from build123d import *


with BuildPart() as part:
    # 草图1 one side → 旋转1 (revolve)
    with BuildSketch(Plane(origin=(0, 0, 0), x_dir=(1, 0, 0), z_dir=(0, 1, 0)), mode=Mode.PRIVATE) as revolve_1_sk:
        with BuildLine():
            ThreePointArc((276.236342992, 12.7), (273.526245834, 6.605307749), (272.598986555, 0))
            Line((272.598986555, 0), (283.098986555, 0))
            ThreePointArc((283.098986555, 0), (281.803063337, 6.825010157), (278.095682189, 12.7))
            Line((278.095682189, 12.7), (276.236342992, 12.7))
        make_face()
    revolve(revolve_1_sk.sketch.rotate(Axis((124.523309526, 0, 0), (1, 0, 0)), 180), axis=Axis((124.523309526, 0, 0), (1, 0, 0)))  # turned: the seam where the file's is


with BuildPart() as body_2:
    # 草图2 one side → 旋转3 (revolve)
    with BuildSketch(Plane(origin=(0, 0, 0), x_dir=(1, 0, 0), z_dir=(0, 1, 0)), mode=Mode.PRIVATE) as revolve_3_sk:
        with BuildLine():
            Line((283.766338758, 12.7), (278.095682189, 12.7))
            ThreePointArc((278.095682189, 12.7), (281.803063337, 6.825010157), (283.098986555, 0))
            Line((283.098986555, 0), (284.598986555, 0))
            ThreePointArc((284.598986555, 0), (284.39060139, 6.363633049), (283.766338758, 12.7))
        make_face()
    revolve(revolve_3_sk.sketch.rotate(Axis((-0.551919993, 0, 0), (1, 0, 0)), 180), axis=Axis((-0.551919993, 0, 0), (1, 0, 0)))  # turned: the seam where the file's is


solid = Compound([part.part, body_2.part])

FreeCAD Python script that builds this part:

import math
import FreeCAD as App
import Part
import Sketcher

V = App.Vector
Q = App.Units.Quantity

doc = App.newDocument("Part")
body = doc.addObject("PartDesign::Body", "Body")

# Sketch on XZ plane
sketch1 = body.newObject("Sketcher::SketchObject", "Sketch")
sketch1.AttachmentSupport = (doc.getObject("XZ_Plane"), [""])
sketch1.MapMode = "FlatFace"
sketch1.addGeometry([
    Part.ArcOfCircle(Part.Circle(V(296.588987, 0, 0), V(0, 0, 1), 23.99), math.radians(180), math.radians(211.964063)),
    Part.LineSegment(V(272.598987, 0, 0), V(283.098987, 0, 0)),
    Part.ArcOfCircle(Part.Circle(V(264.478987, 0, 0), V(0, 0, 1), 18.62), math.radians(-43.005009), math.radians(0)),
    Part.LineSegment(V(278.095682, -12.7, 0), V(276.236343, -12.7, 0)),
], False)
sketch1.addConstraint([
    Sketcher.Constraint("Coincident", 0, 1, 1, 1),
    Sketcher.Constraint("Coincident", 1, 2, 2, 2),
    Sketcher.Constraint("Coincident", 2, 1, 3, 1),
    Sketcher.Constraint("Coincident", 3, 2, 0, 2),
    Sketcher.Constraint("Horizontal", 1),
    Sketcher.Constraint("Horizontal", 3),
    Sketcher.Constraint("PointOnObject", 0, 3, -1),
    Sketcher.Constraint("PointOnObject", 2, 3, -1),
    Sketcher.Constraint("PointOnObject", 0, 1, -1),
    Sketcher.Constraint("Radius", 0, Q("23.99 mm")),
    Sketcher.Constraint("Radius", 2, Q("18.62 mm")),
    Sketcher.Constraint("DistanceX", 1, 1, 1, 2, Q("10.5 mm")),
    Sketcher.Constraint("DistanceY", 2, 1, -1, 1, Q("12.7 mm")),
    Sketcher.Constraint("DistanceX", -1, 1, 0, 3, Q("296.588987 mm")),
])
revolution = body.newObject("PartDesign::Revolution", "Revolution")
revolution.Profile = sketch1
revolution.ReferenceAxis = (sketch1, ["H_Axis"])
revolution.Angle = 360
body2 = doc.addObject("PartDesign::Body", "Body001")

# Sketch on XZ plane
sketch2 = body2.newObject("Sketcher::SketchObject", "Sketch001")
sketch2.AttachmentSupport = (doc.getObject("XZ_Plane001"), [""])
sketch2.MapMode = "FlatFace"
sketch2.addGeometry([
    Part.LineSegment(V(283.766339, -12.7, 0), V(278.095682, -12.7, 0)),
    Part.ArcOfCircle(Part.Circle(V(264.478987, 0, 0), V(0, 0, 1), 18.62), math.radians(-43.005009), math.radians(0)),
    Part.LineSegment(V(283.098987, 0, 0), V(284.598987, 0, 0)),
    Part.ArcOfCircle(Part.Circle(V(187.328987, 0, 0), V(0, 0, 1), 97.27), math.radians(-7.502209), math.radians(0)),
], False)
sketch2.addConstraint([
    Sketcher.Constraint("Coincident", 0, 2, 1, 1),
    Sketcher.Constraint("Coincident", 1, 2, 2, 1),
    Sketcher.Constraint("Coincident", 2, 2, 3, 2),
    Sketcher.Constraint("Coincident", 3, 1, 0, 1),
    Sketcher.Constraint("Horizontal", 0),
    Sketcher.Constraint("Horizontal", 2),
    Sketcher.Constraint("PointOnObject", 1, 3, -1),
    Sketcher.Constraint("PointOnObject", 3, 3, -1),
    Sketcher.Constraint("PointOnObject", 1, 2, -1),
    Sketcher.Constraint("Radius", 1, Q("18.62 mm")),
    Sketcher.Constraint("Radius", 3, Q("97.27 mm")),
    Sketcher.Constraint("DistanceX", 2, 1, 2, 2, Q("1.5 mm")),
    Sketcher.Constraint("DistanceY", 0, 2, -1, 1, Q("12.7 mm")),
    Sketcher.Constraint("DistanceX", -1, 1, 3, 1, Q("283.766339 mm")),
])
revolution2 = body2.newObject("PartDesign::Revolution", "Revolution001")
revolution2.Profile = sketch2
revolution2.ReferenceAxis = (sketch2, ["H_Axis"])
revolution2.Angle = 360

doc.recompute()
